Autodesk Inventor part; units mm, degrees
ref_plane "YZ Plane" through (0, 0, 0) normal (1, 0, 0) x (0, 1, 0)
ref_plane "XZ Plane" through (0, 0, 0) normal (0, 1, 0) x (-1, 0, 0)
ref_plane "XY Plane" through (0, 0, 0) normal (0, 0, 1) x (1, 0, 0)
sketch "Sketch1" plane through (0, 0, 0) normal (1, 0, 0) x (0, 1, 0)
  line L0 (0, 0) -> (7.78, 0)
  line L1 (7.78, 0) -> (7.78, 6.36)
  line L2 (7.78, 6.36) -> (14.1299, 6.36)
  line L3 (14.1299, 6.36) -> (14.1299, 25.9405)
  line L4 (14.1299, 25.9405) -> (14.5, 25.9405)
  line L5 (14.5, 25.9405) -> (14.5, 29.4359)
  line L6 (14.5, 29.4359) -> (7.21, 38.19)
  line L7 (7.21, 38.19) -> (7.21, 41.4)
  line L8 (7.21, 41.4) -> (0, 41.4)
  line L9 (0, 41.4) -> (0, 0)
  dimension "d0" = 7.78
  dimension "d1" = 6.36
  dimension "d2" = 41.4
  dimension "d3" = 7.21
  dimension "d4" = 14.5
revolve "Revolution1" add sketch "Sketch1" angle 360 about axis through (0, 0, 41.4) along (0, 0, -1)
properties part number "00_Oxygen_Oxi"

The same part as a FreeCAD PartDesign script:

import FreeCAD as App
import Part
import Sketcher

V = App.Vector
Q = App.Units.Quantity


def add_polygon(sketch, points):
    """Adds a closed chain of lines whose ends are joined by coincident constraints."""
    first, n = sketch.GeometryCount, len(points)
    for a, b in zip(points, points[1:] + points[:1]):
        sketch.addGeometry(Part.LineSegment(App.Vector(*a, 0), App.Vector(*b, 0)), False)
    for i in range(n):
        sketch.addConstraint(Sketcher.Constraint("Coincident", first + i, 2, first + (i + 1) % n, 1))

doc = App.newDocument("Part")
body = doc.addObject("PartDesign::Body", "Body")

# Sketch on YZ plane
sketch1 = body.newObject("Sketcher::SketchObject", "Sketch")
sketch1.AttachmentSupport = (doc.getObject("YZ_Plane"), [""])
sketch1.MapMode = "FlatFace"
add_polygon(sketch1, [(0, 41.4), (0, 0), (7.78, 0), (7.78, 6.36), (14.1299, 6.36), (14.1299, 25.9405), (14.5, 25.9405), (14.5, 29.4359), (7.21, 38.19), (7.21, 41.4)])  # lines 0-9
sketch1.addConstraint(Sketcher.Constraint("Vertical", 0))
sketch1.addConstraint(Sketcher.Constraint("Horizontal", 1))
sketch1.addConstraint(Sketcher.Constraint("Vertical", 2))
sketch1.addConstraint(Sketcher.Constraint("Horizontal", 3))
sketch1.addConstraint(Sketcher.Constraint("Vertical", 4))
sketch1.addConstraint(Sketcher.Constraint("Horizontal", 5))
sketch1.addConstraint(Sketcher.Constraint("Vertical", 6))
sketch1.addConstraint(Sketcher.Constraint("Vertical", 8))
sketch1.addConstraint(Sketcher.Constraint("Horizontal", 9))
sketch1.addConstraint(Sketcher.Constraint("Coincident", 0, 2, -1, 1))
sketch1.addConstraint(Sketcher.Constraint("DistanceY", 0, 2, 0, 1, Q("41.4 mm")))
sketch1.addConstraint(Sketcher.Constraint("DistanceX", 1, 1, 1, 2, Q("7.78 mm")))
sketch1.addConstraint(Sketcher.Constraint("DistanceX", 9, 2, 9, 1, Q("7.21 mm")))
sketch1.addConstraint(Sketcher.Constraint("DistanceY", 2, 1, 2, 2, Q("6.36 mm")))
sketch1.addConstraint(Sketcher.Constraint("DistanceX", -1, 1, 5, 2, Q("14.5 mm")))
sketch1.addConstraint(Sketcher.Constraint("DistanceX", 3, 1, 3, 2, Q("6.35 mm")))
sketch1.addConstraint(Sketcher.Constraint("DistanceY", 8, 1, 8, 2, Q("3.21 mm")))
sketch1.addConstraint(Sketcher.Constraint("Distance", 7, Q("11.392 mm")))
sketch1.addConstraint(Sketcher.Constraint("DistanceY", 4, 1, 4, 2, Q("19.5805 mm")))
revolution = body.newObject("PartDesign::Revolution", "Revolution")
revolution.Profile = sketch1
revolution.ReferenceAxis = (sketch1, ["V_Axis"])
revolution.Angle = 360

doc.recompute()
